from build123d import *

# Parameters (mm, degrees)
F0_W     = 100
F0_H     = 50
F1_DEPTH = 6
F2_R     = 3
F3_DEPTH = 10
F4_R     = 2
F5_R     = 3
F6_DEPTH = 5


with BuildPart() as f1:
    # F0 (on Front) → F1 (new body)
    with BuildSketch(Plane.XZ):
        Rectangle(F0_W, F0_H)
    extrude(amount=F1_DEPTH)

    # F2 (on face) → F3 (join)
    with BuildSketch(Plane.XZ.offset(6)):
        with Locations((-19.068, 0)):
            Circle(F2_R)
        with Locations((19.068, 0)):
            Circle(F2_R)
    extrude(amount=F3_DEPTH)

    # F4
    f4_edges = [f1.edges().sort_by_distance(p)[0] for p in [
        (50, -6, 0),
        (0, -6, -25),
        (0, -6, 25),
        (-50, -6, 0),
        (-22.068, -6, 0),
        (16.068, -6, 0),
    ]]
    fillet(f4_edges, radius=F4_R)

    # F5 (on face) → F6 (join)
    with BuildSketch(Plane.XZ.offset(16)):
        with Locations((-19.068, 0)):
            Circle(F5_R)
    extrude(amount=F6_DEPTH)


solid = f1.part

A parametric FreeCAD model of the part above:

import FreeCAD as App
import Part
import Sketcher
from FreeCAD import Vector
Q = App.Units.Quantity


def edges_at(feature, points):
    """Names of the edges that pass closest to the given points."""
    edges = feature.Shape.Edges
    near = lambda p: min(range(len(edges)), key=lambda i: edges[i].distToShape(Part.Vertex(*p))[0])
    return sorted({f"Edge{near(p) + 1}" for p in points})

doc = App.newDocument("Part")
body = doc.addObject("PartDesign::Body", "Body")

# Sketch on XZ plane
sketch1 = doc.addObject("Sketcher::SketchObject", "Sketch")
body.addObject(sketch1)
sketch1.AttachmentSupport = (doc.XZ_Plane, [""])
sketch1.MapMode = "FlatFace"
sketch1.addGeometry([
    Part.LineSegment(Vector(-50, 25, 0), Vector(-50, -25, 0)),
    Part.LineSegment(Vector(-50, -25, 0), Vector(50, -25, 0)),
    Part.LineSegment(Vector(50, -25, 0), Vector(50, 25, 0)),
    Part.LineSegment(Vector(50, 25, 0), Vector(-50, 25, 0)),
], False)
sketch1.addConstraint([
    Sketcher.Constraint("Coincident", 0, 2, 1, 1),
    Sketcher.Constraint("Coincident", 1, 2, 2, 1),
    Sketcher.Constraint("Coincident", 2, 2, 3, 1),
    Sketcher.Constraint("Coincident", 3, 2, 0, 1),
    Sketcher.Constraint("Vertical", 0),
    Sketcher.Constraint("Horizontal", 1),
    Sketcher.Constraint("Vertical", 2),
    Sketcher.Constraint("Horizontal", 3),
    Sketcher.Constraint("Symmetric", 0, 2, 2, 2, -1, 1),
    Sketcher.Constraint("DistanceX", 1, 1, 1, 2, Q("100 mm")),
    Sketcher.Constraint("DistanceY", 0, 2, 0, 1, Q("50 mm")),
])
pad1 = doc.addObject("PartDesign::Pad", "Pad")
body.addObject(pad1)
pad1.Profile = sketch1
pad1.Length = 6

# Sketch on XZ plane
sketch2 = doc.addObject("Sketcher::SketchObject", "Sketch001")
body.addObject(sketch2)
sketch2.AttachmentSupport = (doc.XZ_Plane, [""])
sketch2.MapMode = "FlatFace"
sketch2.AttachmentOffset = App.Placement(Vector(0, 0, 6), App.Rotation())
sketch2.addGeometry([
    Part.Circle(Vector(-19.1, 0, 0), Vector(0, 0, 1), 3),
    Part.Circle(Vector(19.1, 0, 0), Vector(0, 0, 1), 3),
], False)
sketch2.addConstraint([
    Sketcher.Constraint("Equal", 0, 1),
    Sketcher.Constraint("Symmetric", 0, 3, 1, 3, -1, 1),
    Sketcher.Constraint("PointOnObject", 0, 3, -1),
    Sketcher.Constraint("Diameter", 0, Q("6 mm")),
    Sketcher.Constraint("DistanceX", 0, 3, -1, 1, Q("19.068 mm")),
])
pad2 = doc.addObject("PartDesign::Pad", "Pad001")
body.addObject(pad2)
pad2.Profile = sketch2
pad2.Length = 10
doc.recompute()

fillet = doc.addObject("PartDesign::Fillet", "Fillet")
body.addObject(fillet)
fillet.Base = (pad2, edges_at(pad2, [
    (50, -6, 0),
    (0, -6, -25),
    (0, -6, 25),
    (-50, -6, 0),
    (-22.068, -6, 0),
    (16.068, -6, 0),
]))
fillet.Radius = 2

# Sketch on XZ plane
sketch3 = doc.addObject("Sketcher::SketchObject", "Sketch002")
body.addObject(sketch3)
sketch3.AttachmentSupport = (doc.XZ_Plane, [""])
sketch3.MapMode = "FlatFace"
sketch3.AttachmentOffset = App.Placement(Vector(0, 0, 16), App.Rotation())
sketch3.addGeometry(Part.Circle(Vector(-19.1, 0, 0), Vector(0, 0, 1), 3), False)
sketch3.addConstraint([
    Sketcher.Constraint("PointOnObject", 0, 3, -1),
    Sketcher.Constraint("Diameter", 0, Q("6 mm")),
    Sketcher.Constraint("DistanceX", 0, 3, -1, 1, Q("19.068 mm")),
])
pad3 = doc.addObject("PartDesign::Pad", "Pad002")
body.addObject(pad3)
pad3.Profile = sketch3
pad3.Length = 5

doc.recompute()
